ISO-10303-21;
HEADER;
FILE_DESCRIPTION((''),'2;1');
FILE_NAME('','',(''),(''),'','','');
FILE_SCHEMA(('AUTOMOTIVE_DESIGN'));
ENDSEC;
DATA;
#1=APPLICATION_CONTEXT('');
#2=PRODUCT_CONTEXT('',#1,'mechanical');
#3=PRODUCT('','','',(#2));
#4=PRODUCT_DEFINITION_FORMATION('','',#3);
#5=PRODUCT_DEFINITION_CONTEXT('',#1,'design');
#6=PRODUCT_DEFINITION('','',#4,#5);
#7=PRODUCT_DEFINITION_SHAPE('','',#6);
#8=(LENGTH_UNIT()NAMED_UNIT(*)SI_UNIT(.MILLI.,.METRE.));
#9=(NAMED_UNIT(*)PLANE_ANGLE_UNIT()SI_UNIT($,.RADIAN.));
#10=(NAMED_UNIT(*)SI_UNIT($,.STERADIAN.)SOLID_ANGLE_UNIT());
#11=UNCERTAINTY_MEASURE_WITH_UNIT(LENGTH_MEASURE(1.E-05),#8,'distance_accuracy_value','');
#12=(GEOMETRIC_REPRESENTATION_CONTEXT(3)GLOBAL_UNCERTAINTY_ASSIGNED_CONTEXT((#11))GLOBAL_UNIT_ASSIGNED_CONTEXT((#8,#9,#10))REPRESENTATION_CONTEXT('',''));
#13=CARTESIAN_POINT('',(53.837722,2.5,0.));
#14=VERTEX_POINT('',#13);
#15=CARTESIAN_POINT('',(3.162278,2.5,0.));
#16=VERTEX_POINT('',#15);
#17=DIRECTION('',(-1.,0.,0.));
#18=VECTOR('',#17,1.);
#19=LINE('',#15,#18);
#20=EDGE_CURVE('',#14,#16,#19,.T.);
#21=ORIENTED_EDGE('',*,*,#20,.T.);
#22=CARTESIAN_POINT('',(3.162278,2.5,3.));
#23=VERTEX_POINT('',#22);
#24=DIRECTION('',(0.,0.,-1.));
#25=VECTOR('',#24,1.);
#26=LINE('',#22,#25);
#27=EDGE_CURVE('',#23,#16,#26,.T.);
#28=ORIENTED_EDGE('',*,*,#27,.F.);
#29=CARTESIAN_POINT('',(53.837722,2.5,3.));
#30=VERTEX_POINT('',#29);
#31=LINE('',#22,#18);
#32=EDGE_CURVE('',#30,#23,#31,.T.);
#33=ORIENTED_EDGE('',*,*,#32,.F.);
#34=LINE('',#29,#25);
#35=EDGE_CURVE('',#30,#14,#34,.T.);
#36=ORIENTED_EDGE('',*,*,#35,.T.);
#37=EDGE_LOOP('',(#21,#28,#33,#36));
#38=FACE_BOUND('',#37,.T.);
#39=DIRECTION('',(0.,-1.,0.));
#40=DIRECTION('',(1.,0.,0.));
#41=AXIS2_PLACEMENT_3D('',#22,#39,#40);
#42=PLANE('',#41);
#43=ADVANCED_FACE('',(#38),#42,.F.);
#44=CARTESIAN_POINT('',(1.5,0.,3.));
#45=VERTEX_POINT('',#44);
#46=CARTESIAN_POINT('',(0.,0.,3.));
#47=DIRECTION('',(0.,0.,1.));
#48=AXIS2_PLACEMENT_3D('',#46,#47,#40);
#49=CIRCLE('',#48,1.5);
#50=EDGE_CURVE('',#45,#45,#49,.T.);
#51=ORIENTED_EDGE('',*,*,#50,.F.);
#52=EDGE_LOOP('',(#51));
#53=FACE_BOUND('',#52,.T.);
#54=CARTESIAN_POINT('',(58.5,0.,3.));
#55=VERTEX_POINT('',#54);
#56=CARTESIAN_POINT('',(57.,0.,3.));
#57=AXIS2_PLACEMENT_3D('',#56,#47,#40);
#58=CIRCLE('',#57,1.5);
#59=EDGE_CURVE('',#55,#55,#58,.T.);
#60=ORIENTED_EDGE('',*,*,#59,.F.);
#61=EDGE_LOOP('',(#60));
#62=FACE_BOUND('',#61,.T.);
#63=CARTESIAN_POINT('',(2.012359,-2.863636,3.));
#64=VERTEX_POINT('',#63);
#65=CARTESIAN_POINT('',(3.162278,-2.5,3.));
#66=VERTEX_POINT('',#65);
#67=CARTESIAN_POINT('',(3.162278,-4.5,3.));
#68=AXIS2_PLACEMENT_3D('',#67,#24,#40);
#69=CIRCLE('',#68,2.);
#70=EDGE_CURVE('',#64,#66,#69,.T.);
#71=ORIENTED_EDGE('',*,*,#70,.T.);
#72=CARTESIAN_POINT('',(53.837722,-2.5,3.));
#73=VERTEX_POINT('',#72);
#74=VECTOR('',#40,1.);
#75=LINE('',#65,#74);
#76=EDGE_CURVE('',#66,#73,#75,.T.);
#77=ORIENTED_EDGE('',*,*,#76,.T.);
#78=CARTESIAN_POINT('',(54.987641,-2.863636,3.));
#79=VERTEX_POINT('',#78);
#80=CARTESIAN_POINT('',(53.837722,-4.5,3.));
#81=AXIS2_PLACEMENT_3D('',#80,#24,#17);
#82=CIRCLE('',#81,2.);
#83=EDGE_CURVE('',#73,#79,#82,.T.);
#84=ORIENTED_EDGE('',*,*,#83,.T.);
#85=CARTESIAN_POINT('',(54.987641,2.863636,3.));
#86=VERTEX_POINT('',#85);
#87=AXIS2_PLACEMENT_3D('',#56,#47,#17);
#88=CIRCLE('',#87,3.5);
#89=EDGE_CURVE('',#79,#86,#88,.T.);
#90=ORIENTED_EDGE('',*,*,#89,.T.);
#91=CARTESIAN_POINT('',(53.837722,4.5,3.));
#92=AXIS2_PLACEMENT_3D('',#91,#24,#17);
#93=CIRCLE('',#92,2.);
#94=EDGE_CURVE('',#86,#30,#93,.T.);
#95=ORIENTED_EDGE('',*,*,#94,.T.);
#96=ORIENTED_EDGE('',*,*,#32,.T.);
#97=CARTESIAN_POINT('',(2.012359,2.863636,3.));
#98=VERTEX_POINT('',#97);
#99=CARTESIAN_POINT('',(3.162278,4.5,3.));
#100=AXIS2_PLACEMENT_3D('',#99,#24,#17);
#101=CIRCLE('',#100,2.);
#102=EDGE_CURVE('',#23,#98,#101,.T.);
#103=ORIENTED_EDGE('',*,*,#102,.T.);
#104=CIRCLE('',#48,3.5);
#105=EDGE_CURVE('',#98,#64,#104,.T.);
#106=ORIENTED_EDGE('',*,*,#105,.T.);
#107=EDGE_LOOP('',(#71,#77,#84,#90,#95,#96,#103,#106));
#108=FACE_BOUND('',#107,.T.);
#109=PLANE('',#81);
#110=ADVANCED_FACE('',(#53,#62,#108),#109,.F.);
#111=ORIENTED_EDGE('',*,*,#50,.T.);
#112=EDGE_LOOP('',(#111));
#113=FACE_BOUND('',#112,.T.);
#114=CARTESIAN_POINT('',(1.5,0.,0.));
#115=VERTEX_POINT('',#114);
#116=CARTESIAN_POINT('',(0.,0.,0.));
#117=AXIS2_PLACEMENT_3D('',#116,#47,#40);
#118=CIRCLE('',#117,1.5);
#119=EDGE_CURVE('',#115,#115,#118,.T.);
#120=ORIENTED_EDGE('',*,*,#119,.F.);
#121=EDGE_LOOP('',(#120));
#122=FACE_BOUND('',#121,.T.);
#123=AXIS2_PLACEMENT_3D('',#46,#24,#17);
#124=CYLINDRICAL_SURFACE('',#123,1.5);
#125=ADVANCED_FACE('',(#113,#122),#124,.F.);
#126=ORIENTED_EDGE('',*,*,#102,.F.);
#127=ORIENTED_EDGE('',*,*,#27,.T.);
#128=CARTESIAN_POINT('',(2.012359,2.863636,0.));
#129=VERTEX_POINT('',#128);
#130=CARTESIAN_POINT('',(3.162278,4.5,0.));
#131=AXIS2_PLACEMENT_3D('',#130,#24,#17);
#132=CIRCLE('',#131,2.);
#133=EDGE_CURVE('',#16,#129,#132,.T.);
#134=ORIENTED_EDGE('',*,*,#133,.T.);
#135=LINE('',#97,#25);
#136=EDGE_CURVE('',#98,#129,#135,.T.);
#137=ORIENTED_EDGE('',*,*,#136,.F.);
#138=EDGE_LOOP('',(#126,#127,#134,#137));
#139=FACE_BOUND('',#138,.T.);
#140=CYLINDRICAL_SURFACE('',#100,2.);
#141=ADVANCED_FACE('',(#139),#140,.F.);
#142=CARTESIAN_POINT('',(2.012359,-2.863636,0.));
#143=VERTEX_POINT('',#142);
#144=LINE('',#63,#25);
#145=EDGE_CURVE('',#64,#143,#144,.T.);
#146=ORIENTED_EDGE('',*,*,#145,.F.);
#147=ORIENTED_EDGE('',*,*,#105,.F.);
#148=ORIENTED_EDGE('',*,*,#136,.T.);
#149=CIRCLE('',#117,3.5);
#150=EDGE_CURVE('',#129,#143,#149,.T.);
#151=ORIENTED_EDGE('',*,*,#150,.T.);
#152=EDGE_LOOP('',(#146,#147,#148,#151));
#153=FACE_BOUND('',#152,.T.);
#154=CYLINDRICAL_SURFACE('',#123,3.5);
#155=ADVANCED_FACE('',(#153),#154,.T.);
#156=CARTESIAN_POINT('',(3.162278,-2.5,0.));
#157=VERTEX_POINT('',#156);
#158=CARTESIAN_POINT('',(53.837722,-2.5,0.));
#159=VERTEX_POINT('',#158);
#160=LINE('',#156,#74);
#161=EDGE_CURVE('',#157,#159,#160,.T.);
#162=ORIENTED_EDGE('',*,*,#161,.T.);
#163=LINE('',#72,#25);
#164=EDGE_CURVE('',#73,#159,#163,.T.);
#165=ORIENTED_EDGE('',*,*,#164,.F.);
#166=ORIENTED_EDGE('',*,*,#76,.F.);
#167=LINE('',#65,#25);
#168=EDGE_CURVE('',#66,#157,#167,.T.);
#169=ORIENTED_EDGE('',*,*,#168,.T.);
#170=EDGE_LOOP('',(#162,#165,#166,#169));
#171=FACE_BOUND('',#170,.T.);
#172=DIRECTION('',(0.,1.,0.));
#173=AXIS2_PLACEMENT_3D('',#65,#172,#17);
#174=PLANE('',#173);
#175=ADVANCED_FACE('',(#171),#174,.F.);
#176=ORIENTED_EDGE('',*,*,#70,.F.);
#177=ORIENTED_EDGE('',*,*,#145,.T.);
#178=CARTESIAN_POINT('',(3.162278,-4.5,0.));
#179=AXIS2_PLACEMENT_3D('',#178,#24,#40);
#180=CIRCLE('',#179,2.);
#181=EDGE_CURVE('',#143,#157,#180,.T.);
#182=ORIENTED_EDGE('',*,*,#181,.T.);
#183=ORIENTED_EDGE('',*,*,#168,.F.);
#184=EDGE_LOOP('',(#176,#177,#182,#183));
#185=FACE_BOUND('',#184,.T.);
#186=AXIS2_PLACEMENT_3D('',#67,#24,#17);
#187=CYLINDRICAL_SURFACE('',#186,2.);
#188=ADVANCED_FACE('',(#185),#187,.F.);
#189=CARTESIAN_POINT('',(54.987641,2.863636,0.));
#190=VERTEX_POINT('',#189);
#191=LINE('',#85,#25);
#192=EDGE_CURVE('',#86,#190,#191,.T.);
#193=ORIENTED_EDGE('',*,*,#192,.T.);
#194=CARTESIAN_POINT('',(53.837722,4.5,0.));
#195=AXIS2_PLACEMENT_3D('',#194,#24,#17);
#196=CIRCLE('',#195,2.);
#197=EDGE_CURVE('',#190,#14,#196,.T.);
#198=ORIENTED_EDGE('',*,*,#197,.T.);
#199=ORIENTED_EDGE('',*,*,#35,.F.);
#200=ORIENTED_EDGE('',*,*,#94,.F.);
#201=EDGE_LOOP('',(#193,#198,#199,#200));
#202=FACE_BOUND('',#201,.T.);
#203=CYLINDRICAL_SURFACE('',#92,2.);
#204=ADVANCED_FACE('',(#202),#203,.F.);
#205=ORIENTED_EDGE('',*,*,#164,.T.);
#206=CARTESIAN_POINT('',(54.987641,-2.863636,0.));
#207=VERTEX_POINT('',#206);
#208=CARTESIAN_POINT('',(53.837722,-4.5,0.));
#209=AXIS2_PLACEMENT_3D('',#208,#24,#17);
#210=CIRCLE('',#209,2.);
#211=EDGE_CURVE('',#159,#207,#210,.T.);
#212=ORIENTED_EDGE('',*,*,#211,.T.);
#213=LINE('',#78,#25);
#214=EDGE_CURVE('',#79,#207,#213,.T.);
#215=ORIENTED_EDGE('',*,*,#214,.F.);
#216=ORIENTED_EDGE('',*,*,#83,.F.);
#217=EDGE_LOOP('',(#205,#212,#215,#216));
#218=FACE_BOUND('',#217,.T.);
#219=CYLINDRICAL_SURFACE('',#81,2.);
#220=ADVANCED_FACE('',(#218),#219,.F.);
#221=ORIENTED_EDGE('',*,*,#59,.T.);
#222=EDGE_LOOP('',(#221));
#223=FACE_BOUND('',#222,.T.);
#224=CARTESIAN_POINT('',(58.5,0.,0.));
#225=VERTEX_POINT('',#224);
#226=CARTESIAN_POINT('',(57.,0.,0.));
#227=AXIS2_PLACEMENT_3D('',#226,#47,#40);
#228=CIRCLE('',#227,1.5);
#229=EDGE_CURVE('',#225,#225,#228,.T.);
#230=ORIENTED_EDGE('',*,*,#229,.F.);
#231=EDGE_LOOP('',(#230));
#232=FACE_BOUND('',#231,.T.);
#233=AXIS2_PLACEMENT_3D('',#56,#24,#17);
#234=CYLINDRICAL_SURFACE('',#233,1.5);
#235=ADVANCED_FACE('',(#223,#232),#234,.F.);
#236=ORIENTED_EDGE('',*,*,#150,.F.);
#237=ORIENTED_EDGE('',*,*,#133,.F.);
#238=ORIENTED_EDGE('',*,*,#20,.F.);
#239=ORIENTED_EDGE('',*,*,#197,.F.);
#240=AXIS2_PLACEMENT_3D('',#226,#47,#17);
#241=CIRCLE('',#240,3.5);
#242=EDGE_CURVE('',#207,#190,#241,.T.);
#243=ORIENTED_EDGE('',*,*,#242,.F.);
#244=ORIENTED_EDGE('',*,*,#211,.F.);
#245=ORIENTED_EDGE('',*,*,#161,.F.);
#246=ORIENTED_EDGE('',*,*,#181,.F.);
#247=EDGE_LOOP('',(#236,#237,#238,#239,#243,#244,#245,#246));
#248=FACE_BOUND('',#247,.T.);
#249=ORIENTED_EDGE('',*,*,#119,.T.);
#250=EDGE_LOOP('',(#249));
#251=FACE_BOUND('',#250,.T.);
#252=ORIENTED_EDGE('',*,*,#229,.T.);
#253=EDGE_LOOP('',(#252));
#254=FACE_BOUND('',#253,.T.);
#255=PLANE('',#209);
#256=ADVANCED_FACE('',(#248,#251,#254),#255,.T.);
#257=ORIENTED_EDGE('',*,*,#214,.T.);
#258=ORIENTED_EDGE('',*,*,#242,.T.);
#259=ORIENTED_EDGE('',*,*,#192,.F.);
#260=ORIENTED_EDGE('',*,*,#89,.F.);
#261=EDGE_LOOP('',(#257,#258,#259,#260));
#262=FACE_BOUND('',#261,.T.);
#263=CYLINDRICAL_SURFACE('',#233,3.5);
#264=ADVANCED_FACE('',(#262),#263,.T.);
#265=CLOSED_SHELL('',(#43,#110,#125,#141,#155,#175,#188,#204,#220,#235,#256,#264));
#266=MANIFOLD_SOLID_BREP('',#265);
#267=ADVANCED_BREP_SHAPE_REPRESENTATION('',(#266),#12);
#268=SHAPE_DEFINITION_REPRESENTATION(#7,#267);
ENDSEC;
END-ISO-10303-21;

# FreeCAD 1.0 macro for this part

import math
import FreeCAD as App
import Part
import Sketcher
Q = App.Units.Quantity

doc = App.newDocument("Part")
params = doc.addObject("Spreadsheet::Sheet", "Params")
for row, (alias, value) in enumerate([
    ("sketch1_diameter", "3 mm"),
    ("sketch1_radius", "2 mm"),
    ("sketch1_radius2", "3.5 mm"),
    ("pad1_length", "3 mm"),
], start=1):
    params.set(f"A{row}", alias)
    params.set(f"B{row}", "=" + value)
    params.setAlias(f"B{row}", alias)

body = doc.addObject("PartDesign::Body", "Body")

# Sketch on XY plane
sketch1 = body.newObject("Sketcher::SketchObject", "Sketch")
sketch1.AttachmentSupport = (doc.getObject("XY_Plane"), [""])
sketch1.MapMode = "FlatFace"
sketch1.addGeometry([
    Part.LineSegment(App.Vector(53.8, 2.5, 0), App.Vector(3.2, 2.5, 0)),  # 0
    Part.ArcOfCircle(Part.Circle(App.Vector(3.2, 4.5, 0), App.Vector(0, 0, 1), 2), math.radians(-125), math.radians(-90)),  # 1
    Part.ArcOfCircle(Part.Circle(App.Vector(0, 0, 0), App.Vector(0, 0, 1), 3.5), math.radians(55), math.radians(305)),  # 2
    Part.ArcOfCircle(Part.Circle(App.Vector(3.2, -4.5, 0), App.Vector(0, 0, 1), 2), math.radians(90), math.radians(125)),  # 3
    Part.LineSegment(App.Vector(3.2, -2.5, 0), App.Vector(53.8, -2.5, 0)),  # 4
    Part.ArcOfCircle(Part.Circle(App.Vector(53.8, -4.5, 0), App.Vector(0, 0, 1), 2), math.radians(55), math.radians(90)),  # 5
    Part.ArcOfCircle(Part.Circle(App.Vector(57, 0, 0), App.Vector(0, 0, 1), 3.5), math.radians(-125), math.radians(125)),  # 6
    Part.ArcOfCircle(Part.Circle(App.Vector(53.8, 4.5, 0), App.Vector(0, 0, 1), 2), math.radians(-90), math.radians(-55)),  # 7
    Part.Circle(App.Vector(57, 0, 0), App.Vector(0, 0, 1), 1.5),  # 8
    Part.Circle(App.Vector(0, 0, 0), App.Vector(0, 0, 1), 1.5),  # 9
], False)
sketch1.addConstraint([
    Sketcher.Constraint("Tangent", 0, 2, 1, 2),
    Sketcher.Constraint("Tangent", 1, 1, 2, 1),
    Sketcher.Constraint("Tangent", 2, 2, 3, 2),
    Sketcher.Constraint("Tangent", 3, 1, 4, 1),
    Sketcher.Constraint("Tangent", 4, 2, 5, 2),
    Sketcher.Constraint("Tangent", 5, 1, 6, 1),
    Sketcher.Constraint("Tangent", 6, 2, 7, 2),
    Sketcher.Constraint("Tangent", 7, 1, 0, 1),
    Sketcher.Constraint("Horizontal", 0),
    Sketcher.Constraint("Horizontal", 4),
    Sketcher.Constraint("Coincident", 2, 3, -1, 1),
    Sketcher.Constraint("Coincident", 9, 3, -1, 1),
    Sketcher.Constraint("Coincident", 8, 3, 6, 3),
    Sketcher.Constraint("Equal", 1, 3),
    Sketcher.Constraint("Equal", 3, 5),
    Sketcher.Constraint("Equal", 2, 6),
    Sketcher.Constraint("Equal", 5, 7),
    Sketcher.Constraint("Equal", 8, 9),
    Sketcher.Constraint("Symmetric", 5, 3, 7, 3, -1),
    Sketcher.Constraint("Diameter", 8, Q("3 mm")),
    Sketcher.Constraint("Radius", 1, Q("2 mm")),
    Sketcher.Constraint("Radius", 2, Q("3.5 mm")),
    Sketcher.Constraint("DistanceX", -1, 1, 6, 3, Q("57 mm")),
    Sketcher.Constraint("DistanceY", 3, 3, 1, 3, Q("9 mm")),
])
sketch1.setExpression("Constraints[19]", "Params.sketch1_diameter")
sketch1.setExpression("Constraints[20]", "Params.sketch1_radius")
sketch1.setExpression("Constraints[21]", "Params.sketch1_radius2")
pad1 = body.newObject("PartDesign::Pad", "Pad")
pad1.Profile = sketch1
pad1.setExpression("Length", "Params.pad1_length")

doc.recompute()
